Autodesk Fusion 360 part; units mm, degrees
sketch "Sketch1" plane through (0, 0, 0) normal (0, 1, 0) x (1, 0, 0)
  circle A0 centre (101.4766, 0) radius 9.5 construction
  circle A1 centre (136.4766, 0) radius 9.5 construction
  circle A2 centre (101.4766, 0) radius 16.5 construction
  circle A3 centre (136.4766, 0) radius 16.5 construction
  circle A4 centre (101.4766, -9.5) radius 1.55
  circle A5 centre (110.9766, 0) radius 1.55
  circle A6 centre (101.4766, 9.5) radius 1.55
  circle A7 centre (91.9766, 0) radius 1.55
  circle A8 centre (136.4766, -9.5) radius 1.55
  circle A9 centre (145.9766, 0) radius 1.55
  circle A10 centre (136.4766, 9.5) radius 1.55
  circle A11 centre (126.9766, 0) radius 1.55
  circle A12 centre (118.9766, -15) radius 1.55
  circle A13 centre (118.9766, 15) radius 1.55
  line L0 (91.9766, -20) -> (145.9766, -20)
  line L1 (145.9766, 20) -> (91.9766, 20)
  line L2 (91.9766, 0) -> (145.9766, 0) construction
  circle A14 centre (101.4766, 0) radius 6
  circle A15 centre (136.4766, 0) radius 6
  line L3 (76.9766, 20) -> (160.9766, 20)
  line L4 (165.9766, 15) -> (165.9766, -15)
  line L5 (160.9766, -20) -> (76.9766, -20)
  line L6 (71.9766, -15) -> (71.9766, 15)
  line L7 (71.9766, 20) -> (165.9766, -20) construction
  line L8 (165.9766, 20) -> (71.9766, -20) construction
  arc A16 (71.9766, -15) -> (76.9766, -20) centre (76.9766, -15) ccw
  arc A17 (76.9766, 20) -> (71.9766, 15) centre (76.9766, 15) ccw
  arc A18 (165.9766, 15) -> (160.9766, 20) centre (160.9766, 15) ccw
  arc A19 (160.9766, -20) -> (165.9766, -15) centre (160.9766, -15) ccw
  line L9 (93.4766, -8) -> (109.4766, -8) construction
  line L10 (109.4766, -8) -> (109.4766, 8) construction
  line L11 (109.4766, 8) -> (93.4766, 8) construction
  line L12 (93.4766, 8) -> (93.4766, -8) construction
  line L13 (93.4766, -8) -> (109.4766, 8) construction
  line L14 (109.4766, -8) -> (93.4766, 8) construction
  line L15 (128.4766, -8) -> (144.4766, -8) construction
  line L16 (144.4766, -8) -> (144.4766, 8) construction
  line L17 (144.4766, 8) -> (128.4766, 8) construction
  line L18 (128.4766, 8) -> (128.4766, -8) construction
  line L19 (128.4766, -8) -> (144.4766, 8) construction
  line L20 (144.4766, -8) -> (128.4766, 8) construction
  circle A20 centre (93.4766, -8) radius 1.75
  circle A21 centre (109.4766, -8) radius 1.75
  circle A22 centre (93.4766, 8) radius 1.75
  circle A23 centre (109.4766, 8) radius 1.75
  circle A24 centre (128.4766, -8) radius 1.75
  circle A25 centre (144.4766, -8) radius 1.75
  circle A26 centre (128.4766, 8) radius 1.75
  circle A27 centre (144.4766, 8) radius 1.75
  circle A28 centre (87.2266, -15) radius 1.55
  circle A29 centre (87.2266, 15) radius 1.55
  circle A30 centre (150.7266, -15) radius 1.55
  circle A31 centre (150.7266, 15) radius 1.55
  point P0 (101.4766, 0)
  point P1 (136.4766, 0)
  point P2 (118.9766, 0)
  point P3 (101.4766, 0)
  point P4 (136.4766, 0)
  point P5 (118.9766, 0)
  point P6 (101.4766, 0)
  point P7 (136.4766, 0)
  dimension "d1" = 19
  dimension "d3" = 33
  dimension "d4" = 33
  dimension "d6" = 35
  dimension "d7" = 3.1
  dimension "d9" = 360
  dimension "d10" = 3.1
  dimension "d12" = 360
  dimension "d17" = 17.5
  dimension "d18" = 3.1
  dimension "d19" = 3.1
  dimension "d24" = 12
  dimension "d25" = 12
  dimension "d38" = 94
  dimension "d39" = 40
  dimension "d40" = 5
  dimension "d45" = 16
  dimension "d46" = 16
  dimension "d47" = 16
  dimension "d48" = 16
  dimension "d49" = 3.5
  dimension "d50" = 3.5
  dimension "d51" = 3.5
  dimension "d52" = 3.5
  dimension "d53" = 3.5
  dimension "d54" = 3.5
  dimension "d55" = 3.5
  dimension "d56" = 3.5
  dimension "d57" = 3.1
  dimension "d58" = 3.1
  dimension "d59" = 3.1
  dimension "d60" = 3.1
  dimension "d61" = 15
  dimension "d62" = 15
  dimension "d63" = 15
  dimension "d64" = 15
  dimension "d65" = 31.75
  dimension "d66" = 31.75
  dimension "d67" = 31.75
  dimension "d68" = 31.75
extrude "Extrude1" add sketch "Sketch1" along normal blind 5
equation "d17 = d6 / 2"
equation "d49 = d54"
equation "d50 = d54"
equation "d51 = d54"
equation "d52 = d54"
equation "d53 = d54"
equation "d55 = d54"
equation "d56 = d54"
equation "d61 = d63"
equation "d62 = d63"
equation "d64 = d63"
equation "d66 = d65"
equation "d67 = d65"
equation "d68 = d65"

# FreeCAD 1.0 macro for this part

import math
import FreeCAD as App
import Part
import Sketcher

doc = App.newDocument("Part")
params = doc.addObject("Spreadsheet::Sheet", "Params")
for row, (alias, value) in enumerate([
    ("sketch1_diameter", "12 mm"),
    ("sketch1_radius", "5 mm"),
    ("sketch1_diameter2", "3.1 mm"),
    ("sketch1_diameter3", "3.5 mm"),
    ("sketch1_width", "84 mm"),
    ("pad1_length", "5 mm"),
], start=1):
    params.set(f"A{row}", alias)
    params.set(f"B{row}", "=" + value)
    params.setAlias(f"B{row}", alias)

body = doc.addObject("PartDesign::Body", "Body")

sketch1 = body.newObject("Sketcher::SketchObject", "Sketch")
sketch1.AttachmentSupport = (doc.getObject("XZ_Plane"), [""])
sketch1.MapMode = "FlatFace"
sketch1.addGeometry(Part.LineSegment(App.Vector(76.9766, 20, 0), App.Vector(160.9766, 20, 0)), False)
sketch1.addGeometry(Part.ArcOfCircle(Part.Circle(App.Vector(160.9766, 15, 0), App.Vector(0, 0, 1), 5), math.radians(0), math.radians(90)), False)
sketch1.addGeometry(Part.LineSegment(App.Vector(165.9766, 15, 0), App.Vector(165.9766, -15, 0)), False)
sketch1.addGeometry(Part.ArcOfCircle(Part.Circle(App.Vector(160.9766, -15, 0), App.Vector(0, 0, 1), 5), math.radians(-90), math.radians(0)), False)
sketch1.addGeometry(Part.LineSegment(App.Vector(160.9766, -20, 0), App.Vector(76.9766, -20, 0)), False)
sketch1.addGeometry(Part.ArcOfCircle(Part.Circle(App.Vector(76.9766, -15, 0), App.Vector(0, 0, 1), 5), math.radians(180), math.radians(270)), False)
sketch1.addGeometry(Part.LineSegment(App.Vector(71.9766, -15, 0), App.Vector(71.9766, 15, 0)), False)
sketch1.addGeometry(Part.ArcOfCircle(Part.Circle(App.Vector(76.9766, 15, 0), App.Vector(0, 0, 1), 5), math.radians(90), math.radians(180)), False)
sketch1.addGeometry(Part.Circle(App.Vector(87.2266, 15, 0), App.Vector(0, 0, 1), 1.55), False)
sketch1.addGeometry(Part.Circle(App.Vector(93.4766, 8, 0), App.Vector(0, 0, 1), 1.75), False)
sketch1.addGeometry(Part.Circle(App.Vector(101.4766, 9.5, 0), App.Vector(0, 0, 1), 1.55), False)
sketch1.addGeometry(Part.Circle(App.Vector(109.4766, 8, 0), App.Vector(0, 0, 1), 1.75), False)
sketch1.addGeometry(Part.Circle(App.Vector(118.9766, 15, 0), App.Vector(0, 0, 1), 1.55), False)
sketch1.addGeometry(Part.Circle(App.Vector(150.7266, 15, 0), App.Vector(0, 0, 1), 1.55), False)
sketch1.addGeometry(Part.Circle(App.Vector(128.4766, 8, 0), App.Vector(0, 0, 1), 1.75), False)
sketch1.addGeometry(Part.Circle(App.Vector(136.4766, 9.5, 0), App.Vector(0, 0, 1), 1.55), False)
sketch1.addGeometry(Part.Circle(App.Vector(144.4766, 8, 0), App.Vector(0, 0, 1), 1.75), False)
sketch1.addGeometry(Part.Circle(App.Vector(91.9766, 0, 0), App.Vector(0, 0, 1), 1.55), False)
sketch1.addGeometry(Part.Circle(App.Vector(93.4766, -8, 0), App.Vector(0, 0, 1), 1.75), False)
sketch1.addGeometry(Part.Circle(App.Vector(101.4766, 0, 0), App.Vector(0, 0, 1), 6), False)
sketch1.addGeometry(Part.Circle(App.Vector(110.9766, 0, 0), App.Vector(0, 0, 1), 1.55), False)
sketch1.addGeometry(Part.Circle(App.Vector(101.4766, -9.5, 0), App.Vector(0, 0, 1), 1.55), False)
sketch1.addGeometry(Part.Circle(App.Vector(109.4766, -8, 0), App.Vector(0, 0, 1), 1.75), False)
sketch1.addGeometry(Part.Circle(App.Vector(87.2266, -15, 0), App.Vector(0, 0, 1), 1.55), False)
sketch1.addGeometry(Part.Circle(App.Vector(126.9766, 0, 0), App.Vector(0, 0, 1), 1.55), False)
sketch1.addGeometry(Part.Circle(App.Vector(136.4766, 0, 0), App.Vector(0, 0, 1), 6), False)
sketch1.addGeometry(Part.Circle(App.Vector(128.4766, -8, 0), App.Vector(0, 0, 1), 1.75), False)
sketch1.addGeometry(Part.Circle(App.Vector(136.4766, -9.5, 0), App.Vector(0, 0, 1), 1.55), False)
sketch1.addGeometry(Part.Circle(App.Vector(145.9766, 0, 0), App.Vector(0, 0, 1), 1.55), False)
sketch1.addGeometry(Part.Circle(App.Vector(144.4766, -8, 0), App.Vector(0, 0, 1), 1.75), False)
sketch1.addGeometry(Part.Circle(App.Vector(118.9766, -15, 0), App.Vector(0, 0, 1), 1.55), False)
sketch1.addGeometry(Part.Circle(App.Vector(150.7266, -15, 0), App.Vector(0, 0, 1), 1.55), False)
sketch1.addConstraint(Sketcher.Constraint("Tangent", 0, 2, 1, 2))
sketch1.addConstraint(Sketcher.Constraint("Tangent", 1, 1, 2, 1))
sketch1.addConstraint(Sketcher.Constraint("Tangent", 2, 2, 3, 2))
sketch1.addConstraint(Sketcher.Constraint("Tangent", 3, 1, 4, 1))
sketch1.addConstraint(Sketcher.Constraint("Tangent", 4, 2, 5, 2))
sketch1.addConstraint(Sketcher.Constraint("Tangent", 5, 1, 6, 1))
sketch1.addConstraint(Sketcher.Constraint("Tangent", 6, 2, 7, 2))
sketch1.addConstraint(Sketcher.Constraint("Tangent", 7, 1, 0, 1))
sketch1.addConstraint(Sketcher.Constraint("Horizontal", 0))
sketch1.addConstraint(Sketcher.Constraint("Vertical", 2))
sketch1.addConstraint(Sketcher.Constraint("Horizontal", 4))
sketch1.addConstraint(Sketcher.Constraint("Vertical", 6))
sketch1.addConstraint(Sketcher.Constraint("Equal", 1, 3))
sketch1.addConstraint(Sketcher.Constraint("Equal", 3, 5))
sketch1.addConstraint(Sketcher.Constraint("Equal", 5, 7))
sketch1.addConstraint(Sketcher.Constraint("Equal", 8, 10))
sketch1.addConstraint(Sketcher.Constraint("Equal", 9, 11))
sketch1.addConstraint(Sketcher.Constraint("Equal", 10, 12))
sketch1.addConstraint(Sketcher.Constraint("Equal", 12, 13))
sketch1.addConstraint(Sketcher.Constraint("Equal", 11, 14))
sketch1.addConstraint(Sketcher.Constraint("Equal", 13, 15))
sketch1.addConstraint(Sketcher.Constraint("Equal", 14, 16))
sketch1.addConstraint(Sketcher.Constraint("Equal", 15, 17))
sketch1.addConstraint(Sketcher.Constraint("Equal", 16, 18))
sketch1.addConstraint(Sketcher.Constraint("Equal", 17, 20))
sketch1.addConstraint(Sketcher.Constraint("Equal", 20, 21))
sketch1.addConstraint(Sketcher.Constraint("Equal", 18, 22))
sketch1.addConstraint(Sketcher.Constraint("Equal", 21, 23))
sketch1.addConstraint(Sketcher.Constraint("Equal", 23, 24))
sketch1.addConstraint(Sketcher.Constraint("Equal", 19, 25))
sketch1.addConstraint(Sketcher.Constraint("Equal", 22, 26))
sketch1.addConstraint(Sketcher.Constraint("Equal", 24, 27))
sketch1.addConstraint(Sketcher.Constraint("Equal", 27, 28))
sketch1.addConstraint(Sketcher.Constraint("Equal", 26, 29))
sketch1.addConstraint(Sketcher.Constraint("Equal", 28, 30))
sketch1.addConstraint(Sketcher.Constraint("Equal", 30, 31))
sketch1.addConstraint(Sketcher.Constraint("Symmetric", 9, 3, 18, 3, -1))
sketch1.addConstraint(Sketcher.Constraint("Symmetric", 10, 3, 21, 3, -1))
sketch1.addConstraint(Sketcher.Constraint("Symmetric", 11, 3, 22, 3, -1))
sketch1.addConstraint(Sketcher.Constraint("Symmetric", 8, 3, 23, 3, -1))
sketch1.addConstraint(Sketcher.Constraint("Symmetric", 14, 3, 26, 3, -1))
sketch1.addConstraint(Sketcher.Constraint("Symmetric", 15, 3, 27, 3, -1))
sketch1.addConstraint(Sketcher.Constraint("Symmetric", 16, 3, 29, 3, -1))
sketch1.addConstraint(Sketcher.Constraint("Symmetric", 12, 3, 30, 3, -1))
sketch1.addConstraint(Sketcher.Constraint("Symmetric", 13, 3, 31, 3, -1))
sketch1.addConstraint(Sketcher.Constraint("PointOnObject", 17, 3, -1))
sketch1.addConstraint(Sketcher.Constraint("PointOnObject", 19, 3, -1))
sketch1.addConstraint(Sketcher.Constraint("PointOnObject", 20, 3, -1))
sketch1.addConstraint(Sketcher.Constraint("PointOnObject", 24, 3, -1))
sketch1.addConstraint(Sketcher.Constraint("PointOnObject", 25, 3, -1))
sketch1.addConstraint(Sketcher.Constraint("PointOnObject", 28, 3, -1))
sketch1.addConstraint(Sketcher.Constraint("Horizontal", 7, 3, 8, 3))
sketch1.addConstraint(Sketcher.Constraint("Horizontal", 9, 3, 11, 3))
sketch1.addConstraint(Sketcher.Constraint("Horizontal", 8, 3, 12, 3))
sketch1.addConstraint(Sketcher.Constraint("Horizontal", 12, 3, 13, 3))
sketch1.addConstraint(Sketcher.Constraint("Horizontal", 11, 3, 14, 3))
sketch1.addConstraint(Sketcher.Constraint("Horizontal", 10, 3, 15, 3))
sketch1.addConstraint(Sketcher.Constraint("Horizontal", 14, 3, 16, 3))
sketch1.addConstraint(Sketcher.Constraint("Horizontal", 5, 3, 23, 3))
sketch1.addConstraint(Sketcher.Constraint("Vertical", 10, 3, 19, 3))
sketch1.addConstraint(Sketcher.Constraint("Vertical", 15, 3, 25, 3))
sketch1.addConstraint(Sketcher.Constraint("Diameter", 19, 12.0))
sketch1.addConstraint(Sketcher.Constraint("Radius", 1, 5.0))
sketch1.addConstraint(Sketcher.Constraint("Diameter", 8, 3.1))
sketch1.addConstraint(Sketcher.Constraint("Diameter", 9, 3.5))
sketch1.addConstraint(Sketcher.Constraint("DistanceY", -1, 1, 1, 3, 15.0))
sketch1.addConstraint(Sketcher.Constraint("DistanceX", 9, 3, 11, 3, 16.0))
sketch1.addConstraint(Sketcher.Constraint("DistanceX", 11, 3, 14, 3, 19.0))
sketch1.addConstraint(Sketcher.Constraint("DistanceX", 14, 3, 16, 3, 16.0))
sketch1.addConstraint(Sketcher.Constraint("DistanceX", 5, 3, 17, 3, 15.0))
sketch1.addConstraint(Sketcher.Constraint("DistanceY", 18, 3, 9, 3, 16.0))
sketch1.addConstraint(Sketcher.Constraint("DistanceX", 17, 3, 20, 3, 19.0))
sketch1.addConstraint(Sketcher.Constraint("DistanceY", 21, 3, 10, 3, 19.0))
sketch1.addConstraint(Sketcher.Constraint("DistanceX", 20, 3, 24, 3, 16.0))
sketch1.addConstraint(Sketcher.Constraint("DistanceX", 28, 3, 0, 2, 15.0))
sketch1.addConstraint(Sketcher.Constraint("DistanceX", 10, 3, 12, 3, 17.5))
sketch1.addConstraint(Sketcher.Constraint("DistanceX", 12, 3, 15, 3, 17.5))
sketch1.addConstraint(Sketcher.Constraint("DistanceX", 17, 3, 11, 3, 17.5))
sketch1.addConstraint(Sketcher.Constraint("DistanceX", 0, 1, 0, 2, 84.0))
sketch1.addConstraint(Sketcher.Constraint("DistanceX", 8, 3, 12, 3, 31.75))
sketch1.addConstraint(Sketcher.Constraint("DistanceX", 12, 3, 13, 3, 31.75))
sketch1.addConstraint(Sketcher.Constraint("DistanceX", 9, 3, 10, 3, 8.0))
sketch1.addConstraint(Sketcher.Constraint("DistanceX", -1, 1, 1, 3, 160.9766))
sketch1.setExpression("Constraints[61]", "Params.sketch1_diameter")
sketch1.setExpression("Constraints[62]", "Params.sketch1_radius")
sketch1.setExpression("Constraints[63]", "Params.sketch1_diameter2")
sketch1.setExpression("Constraints[64]", "Params.sketch1_diameter3")
sketch1.setExpression("Constraints[78]", "Params.sketch1_width")
pad1 = body.newObject("PartDesign::Pad", "Pad")
pad1.Profile = sketch1
pad1.setExpression("Length", "Params.pad1_length")
pad1.Reversed = True

doc.recompute()
